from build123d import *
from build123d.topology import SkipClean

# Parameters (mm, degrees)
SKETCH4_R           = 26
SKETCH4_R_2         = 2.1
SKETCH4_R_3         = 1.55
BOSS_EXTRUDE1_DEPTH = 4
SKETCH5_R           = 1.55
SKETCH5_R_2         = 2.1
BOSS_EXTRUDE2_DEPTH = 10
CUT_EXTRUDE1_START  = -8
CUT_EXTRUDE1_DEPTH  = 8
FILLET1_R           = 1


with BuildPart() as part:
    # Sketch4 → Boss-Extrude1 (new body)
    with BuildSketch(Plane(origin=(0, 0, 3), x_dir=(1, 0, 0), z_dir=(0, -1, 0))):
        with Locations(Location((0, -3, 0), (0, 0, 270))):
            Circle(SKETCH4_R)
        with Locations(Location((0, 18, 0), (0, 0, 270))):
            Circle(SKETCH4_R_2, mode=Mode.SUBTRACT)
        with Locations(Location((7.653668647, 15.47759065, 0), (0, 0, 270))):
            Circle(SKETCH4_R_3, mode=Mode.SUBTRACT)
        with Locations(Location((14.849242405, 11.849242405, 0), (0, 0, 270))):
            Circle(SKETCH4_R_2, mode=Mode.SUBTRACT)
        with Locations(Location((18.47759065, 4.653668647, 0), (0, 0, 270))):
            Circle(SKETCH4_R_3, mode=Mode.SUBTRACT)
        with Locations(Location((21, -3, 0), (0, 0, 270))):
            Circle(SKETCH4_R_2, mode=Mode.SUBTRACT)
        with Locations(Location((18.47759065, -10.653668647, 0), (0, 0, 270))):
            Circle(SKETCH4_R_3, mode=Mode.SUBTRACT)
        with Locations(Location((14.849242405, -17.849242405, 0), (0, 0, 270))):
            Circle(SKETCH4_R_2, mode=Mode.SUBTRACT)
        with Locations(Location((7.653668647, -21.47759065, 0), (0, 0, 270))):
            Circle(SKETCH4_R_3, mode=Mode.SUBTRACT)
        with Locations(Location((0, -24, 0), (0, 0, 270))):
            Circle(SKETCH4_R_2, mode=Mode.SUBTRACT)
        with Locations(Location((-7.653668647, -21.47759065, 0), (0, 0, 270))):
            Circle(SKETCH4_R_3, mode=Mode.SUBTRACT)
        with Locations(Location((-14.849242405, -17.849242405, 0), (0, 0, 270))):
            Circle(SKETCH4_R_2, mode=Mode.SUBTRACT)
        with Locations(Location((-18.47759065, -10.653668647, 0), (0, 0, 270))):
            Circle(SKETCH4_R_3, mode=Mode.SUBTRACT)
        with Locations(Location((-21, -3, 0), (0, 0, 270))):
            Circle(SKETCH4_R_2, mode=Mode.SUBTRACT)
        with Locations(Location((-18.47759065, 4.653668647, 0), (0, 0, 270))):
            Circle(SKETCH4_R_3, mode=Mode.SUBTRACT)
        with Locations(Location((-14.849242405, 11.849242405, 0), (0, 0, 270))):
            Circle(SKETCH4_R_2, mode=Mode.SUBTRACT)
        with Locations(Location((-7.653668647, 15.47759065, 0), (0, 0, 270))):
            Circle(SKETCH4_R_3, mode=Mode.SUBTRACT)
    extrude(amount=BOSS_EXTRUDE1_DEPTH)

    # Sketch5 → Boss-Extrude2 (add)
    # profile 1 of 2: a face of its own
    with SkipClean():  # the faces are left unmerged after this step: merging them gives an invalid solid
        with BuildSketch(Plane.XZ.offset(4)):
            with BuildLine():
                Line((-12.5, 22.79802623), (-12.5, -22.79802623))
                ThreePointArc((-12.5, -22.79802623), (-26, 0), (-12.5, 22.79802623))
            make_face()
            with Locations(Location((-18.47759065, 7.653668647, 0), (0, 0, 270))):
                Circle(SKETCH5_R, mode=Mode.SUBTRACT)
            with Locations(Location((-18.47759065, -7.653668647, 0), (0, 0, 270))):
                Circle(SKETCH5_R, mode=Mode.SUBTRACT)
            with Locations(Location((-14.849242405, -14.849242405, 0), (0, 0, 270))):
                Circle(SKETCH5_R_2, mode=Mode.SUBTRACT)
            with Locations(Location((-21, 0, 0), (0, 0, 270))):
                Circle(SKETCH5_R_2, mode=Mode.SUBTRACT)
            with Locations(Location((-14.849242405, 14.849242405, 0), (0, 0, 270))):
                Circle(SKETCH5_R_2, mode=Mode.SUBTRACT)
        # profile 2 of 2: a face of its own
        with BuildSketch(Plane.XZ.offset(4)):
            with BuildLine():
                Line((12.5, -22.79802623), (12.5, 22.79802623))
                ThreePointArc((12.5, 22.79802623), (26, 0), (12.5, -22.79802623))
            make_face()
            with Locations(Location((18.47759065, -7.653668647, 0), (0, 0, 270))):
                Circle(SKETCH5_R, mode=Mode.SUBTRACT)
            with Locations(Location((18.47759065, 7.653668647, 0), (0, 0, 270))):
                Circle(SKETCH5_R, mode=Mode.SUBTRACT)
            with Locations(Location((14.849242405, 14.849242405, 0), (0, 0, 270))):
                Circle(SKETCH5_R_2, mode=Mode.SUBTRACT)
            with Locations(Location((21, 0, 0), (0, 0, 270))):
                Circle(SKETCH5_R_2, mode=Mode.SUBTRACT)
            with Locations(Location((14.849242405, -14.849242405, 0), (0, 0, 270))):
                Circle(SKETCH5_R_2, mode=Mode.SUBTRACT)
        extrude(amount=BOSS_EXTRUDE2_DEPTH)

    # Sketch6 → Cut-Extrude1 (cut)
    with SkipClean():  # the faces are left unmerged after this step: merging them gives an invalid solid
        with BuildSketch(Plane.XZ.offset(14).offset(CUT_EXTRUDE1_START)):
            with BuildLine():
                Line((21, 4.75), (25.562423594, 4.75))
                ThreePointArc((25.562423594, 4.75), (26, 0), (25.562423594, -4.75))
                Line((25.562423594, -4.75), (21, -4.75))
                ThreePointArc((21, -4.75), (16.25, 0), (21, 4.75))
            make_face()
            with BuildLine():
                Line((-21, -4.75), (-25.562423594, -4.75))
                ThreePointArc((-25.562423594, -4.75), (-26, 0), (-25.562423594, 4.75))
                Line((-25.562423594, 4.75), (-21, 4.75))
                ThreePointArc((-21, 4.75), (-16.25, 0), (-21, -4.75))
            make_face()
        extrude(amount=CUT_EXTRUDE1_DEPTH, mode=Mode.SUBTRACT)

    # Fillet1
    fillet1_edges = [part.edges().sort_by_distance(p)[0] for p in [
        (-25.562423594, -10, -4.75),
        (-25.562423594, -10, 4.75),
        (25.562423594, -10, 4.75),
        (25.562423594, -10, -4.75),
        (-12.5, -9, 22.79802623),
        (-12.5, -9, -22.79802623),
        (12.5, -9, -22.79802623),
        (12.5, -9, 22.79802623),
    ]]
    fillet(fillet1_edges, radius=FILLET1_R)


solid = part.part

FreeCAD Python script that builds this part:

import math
import FreeCAD as App
import Part
import Sketcher
from FreeCAD import Vector


def edges_at(feature, points):
    """Names of the edges that pass closest to the given points."""
    edges = feature.Shape.Edges
    near = lambda p: min(range(len(edges)), key=lambda i: edges[i].distToShape(Part.Vertex(*p))[0])
    return sorted({f"Edge{near(p) + 1}" for p in points})

doc = App.newDocument("Part")
body = doc.addObject("PartDesign::Body", "Body")

# Sketch on XZ plane
sketch1 = doc.addObject("Sketcher::SketchObject", "Sketch")
body.addObject(sketch1)
sketch1.AttachmentSupport = (doc.XZ_Plane, [""])
sketch1.MapMode = "FlatFace"
sketch1.addGeometry([
    Part.Circle(Vector(0, 0, 0), Vector(0, 0, 1), 26),  # 0
    Part.Circle(Vector(-14.8, 14.8, 0), Vector(0, 0, 1), 2.1),  # 1
    Part.Circle(Vector(-18.5, 7.7, 0), Vector(0, 0, 1), 1.6),  # 2
    Part.Circle(Vector(-7.7, 18.5, 0), Vector(0, 0, 1), 1.6),  # 3
    Part.Circle(Vector(0, 21, 0), Vector(0, 0, 1), 2.1),  # 4
    Part.Circle(Vector(-21, 0, 0), Vector(0, 0, 1), 2.1),  # 5
    Part.Circle(Vector(-18.5, -7.7, 0), Vector(0, 0, 1), 1.6),  # 6
    Part.Circle(Vector(-14.8, -14.8, 0), Vector(0, 0, 1), 2.1),  # 7
    Part.Circle(Vector(-7.7, -18.5, 0), Vector(0, 0, 1), 1.6),  # 8
    Part.Circle(Vector(7.7, 18.5, 0), Vector(0, 0, 1), 1.6),  # 9
    Part.Circle(Vector(14.8, 14.8, 0), Vector(0, 0, 1), 2.1),  # 10
    Part.Circle(Vector(18.5, 7.7, 0), Vector(0, 0, 1), 1.6),  # 11
    Part.Circle(Vector(21, 0, 0), Vector(0, 0, 1), 2.1),  # 12
    Part.Circle(Vector(0, -21, 0), Vector(0, 0, 1), 2.1),  # 13
    Part.Circle(Vector(7.7, -18.5, 0), Vector(0, 0, 1), 1.6),  # 14
    Part.Circle(Vector(18.5, -7.7, 0), Vector(0, 0, 1), 1.6),  # 15
    Part.Circle(Vector(14.8, -14.8, 0), Vector(0, 0, 1), 2.1),  # 16
], False)
sketch1.addConstraint([
    Sketcher.Constraint("Coincident", 0, 3, -1, 1),
    Sketcher.Constraint("Equal", 2, 3),
    Sketcher.Constraint("Equal", 1, 4),
    Sketcher.Constraint("Equal", 4, 5),
    Sketcher.Constraint("Equal", 3, 6),
    Sketcher.Constraint("Equal", 5, 7),
    Sketcher.Constraint("Equal", 6, 8),
    Sketcher.Constraint("Equal", 8, 9),
    Sketcher.Constraint("Equal", 7, 10),
    Sketcher.Constraint("Equal", 9, 11),
    Sketcher.Constraint("Equal", 10, 12),
    Sketcher.Constraint("Equal", 12, 13),
    Sketcher.Constraint("Equal", 11, 14),
    Sketcher.Constraint("Equal", 14, 15),
    Sketcher.Constraint("Equal", 13, 16),
    Sketcher.Constraint("Symmetric", 8, 3, 9, 3, -1, 1),
    Sketcher.Constraint("Symmetric", 7, 3, 10, 3, -1, 1),
    Sketcher.Constraint("Symmetric", 6, 3, 11, 3, -1, 1),
    Sketcher.Constraint("Symmetric", 5, 3, 12, 3, -1, 1),
    Sketcher.Constraint("Symmetric", 4, 3, 13, 3, -1, 1),
    Sketcher.Constraint("Symmetric", 3, 3, 14, 3, -1, 1),
    Sketcher.Constraint("Symmetric", 2, 3, 15, 3, -1, 1),
    Sketcher.Constraint("Symmetric", 1, 3, 16, 3, -1, 1),
    Sketcher.Constraint("Symmetric", 3, 3, 9, 3, -2),
    Sketcher.Constraint("Symmetric", 1, 3, 10, 3, -2),
    Sketcher.Constraint("Symmetric", 2, 3, 11, 3, -2),
    Sketcher.Constraint("PointOnObject", 4, 3, -2),
    Sketcher.Constraint("PointOnObject", 5, 3, -1),
    Sketcher.Constraint("Diameter", 0, 52.0),
    Sketcher.Constraint("Diameter", 1, 4.2),
    Sketcher.Constraint("Diameter", 2, 3.1),
    Sketcher.Constraint("DistanceY", -1, 1, 4, 3, 21.0),
    Sketcher.Constraint("DistanceX", 5, 3, -1, 1, 21.0),
    Sketcher.Constraint("DistanceX", 2, 3, -1, 1, 18.477591),
    Sketcher.Constraint("DistanceY", -1, 1, 2, 3, 7.653669),
    Sketcher.Constraint("DistanceX", 3, 3, -1, 1, 7.653669),
    Sketcher.Constraint("DistanceY", -1, 1, 3, 3, 18.477591),
    Sketcher.Constraint("DistanceX", 2, 3, 1, 3, 3.628348),
    Sketcher.Constraint("DistanceY", 1, 3, 3, 3, 3.628348),
])
pad1 = doc.addObject("PartDesign::Pad", "Pad")
body.addObject(pad1)
pad1.Profile = sketch1
pad1.Length = 4

# Sketch on XZ plane
sketch2 = doc.addObject("Sketcher::SketchObject", "Sketch001")
body.addObject(sketch2)
sketch2.AttachmentSupport = (doc.XZ_Plane, [""])
sketch2.MapMode = "FlatFace"
sketch2.AttachmentOffset = App.Placement(Vector(0, 0, 4), App.Rotation())
sketch2.addGeometry([
    Part.LineSegment(Vector(-12.5, -22.8, 0), Vector(-12.5, 22.8, 0)),  # 0
    Part.ArcOfCircle(Part.Circle(Vector(0, 0, 0), Vector(0, 0, 1), 26), math.radians(119), math.radians(241)),  # 1
    Part.Circle(Vector(-14.8, -14.8, 0), Vector(0, 0, 1), 2.1),  # 2
    Part.Circle(Vector(-18.5, -7.7, 0), Vector(0, 0, 1), 1.6),  # 3
    Part.Circle(Vector(-14.8, 14.8, 0), Vector(0, 0, 1), 2.1),  # 4
    Part.Circle(Vector(-18.5, 7.7, 0), Vector(0, 0, 1), 1.6),  # 5
    Part.Circle(Vector(-21, 0, 0), Vector(0, 0, 1), 2.1),  # 6
    Part.LineSegment(Vector(12.5, 22.8, 0), Vector(12.5, -22.8, 0)),  # 7
    Part.ArcOfCircle(Part.Circle(Vector(0, 0, 0), Vector(0, 0, 1), 26), math.radians(-61), math.radians(61)),  # 8
    Part.Circle(Vector(18.5, -7.7, 0), Vector(0, 0, 1), 1.6),  # 9
    Part.Circle(Vector(14.8, -14.8, 0), Vector(0, 0, 1), 2.1),  # 10
    Part.Circle(Vector(21, 0, 0), Vector(0, 0, 1), 2.1),  # 11
    Part.Circle(Vector(18.5, 7.7, 0), Vector(0, 0, 1), 1.6),  # 12
    Part.Circle(Vector(14.8, 14.8, 0), Vector(0, 0, 1), 2.1),  # 13
], False)
sketch2.addConstraint([
    Sketcher.Constraint("Coincident", 0, 1, 1, 2),
    Sketcher.Constraint("Coincident", 1, 1, 0, 2),
    Sketcher.Constraint("Coincident", 7, 1, 8, 2),
    Sketcher.Constraint("Coincident", 8, 1, 7, 2),
    Sketcher.Constraint("Vertical", 0),
    Sketcher.Constraint("Vertical", 7),
    Sketcher.Constraint("Coincident", 1, 3, -1, 1),
    Sketcher.Constraint("Coincident", 8, 3, -1, 1),
    Sketcher.Constraint("Equal", 2, 4),
    Sketcher.Constraint("Equal", 3, 5),
    Sketcher.Constraint("Equal", 4, 6),
    Sketcher.Constraint("Equal", 1, 8),
    Sketcher.Constraint("Equal", 5, 9),
    Sketcher.Constraint("Equal", 6, 10),
    Sketcher.Constraint("Equal", 10, 11),
    Sketcher.Constraint("Equal", 9, 12),
    Sketcher.Constraint("Equal", 11, 13),
    Sketcher.Constraint("Symmetric", 5, 3, 9, 3, -1, 1),
    Sketcher.Constraint("Symmetric", 4, 3, 10, 3, -1, 1),
    Sketcher.Constraint("Symmetric", 6, 3, 11, 3, -1, 1),
    Sketcher.Constraint("Symmetric", 3, 3, 12, 3, -1, 1),
    Sketcher.Constraint("Symmetric", 2, 3, 13, 3, -1, 1),
    Sketcher.Constraint("Symmetric", 3, 3, 9, 3, -2),
    Sketcher.Constraint("Symmetric", 2, 3, 10, 3, -2),
    Sketcher.Constraint("PointOnObject", 6, 3, -1),
    Sketcher.Constraint("Horizontal", 1, 1, 7, 1),
    Sketcher.Constraint("Radius", 1, 26.0),
    Sketcher.Constraint("Diameter", 2, 4.2),
    Sketcher.Constraint("Diameter", 3, 3.1),
    Sketcher.Constraint("DistanceX", 6, 3, -1, 1, 21.0),
    Sketcher.Constraint("DistanceX", 1, 1, 7, 1, 25.0),
    Sketcher.Constraint("DistanceX", 3, 3, -1, 1, 18.477591),
    Sketcher.Constraint("DistanceY", 3, 3, -1, 1, 7.653669),
    Sketcher.Constraint("DistanceX", 3, 3, 2, 3, 3.628348),
    Sketcher.Constraint("DistanceY", 3, 3, 4, 3, 22.502911),
])
pad2 = doc.addObject("PartDesign::Pad", "Pad001")
body.addObject(pad2)
pad2.Profile = sketch2
pad2.Length = 10

# Sketch on XZ plane
sketch3 = doc.addObject("Sketcher::SketchObject", "Sketch002")
body.addObject(sketch3)
sketch3.AttachmentSupport = (doc.XZ_Plane, [""])
sketch3.MapMode = "FlatFace"
sketch3.AttachmentOffset = App.Placement(Vector(0, 0, 6), App.Rotation())
sketch3.addGeometry([
    Part.LineSegment(Vector(25.6, 4.8, 0), Vector(21, 4.8, 0)),  # 0
    Part.ArcOfCircle(Part.Circle(Vector(21, 0, 0), Vector(0, 0, 1), 4.8), math.radians(90), math.radians(270)),  # 1
    Part.LineSegment(Vector(21, -4.8, 0), Vector(25.6, -4.8, 0)),  # 2
    Part.ArcOfCircle(Part.Circle(Vector(0, 0, 0), Vector(0, 0, 1), 26), math.radians(-11), math.radians(11)),  # 3
    Part.LineSegment(Vector(-25.6, -4.8, 0), Vector(-21, -4.8, 0)),  # 4
    Part.ArcOfCircle(Part.Circle(Vector(-21, 0, 0), Vector(0, 0, 1), 4.8), math.radians(-90), math.radians(90)),  # 5
    Part.LineSegment(Vector(-21, 4.8, 0), Vector(-25.6, 4.8, 0)),  # 6
    Part.ArcOfCircle(Part.Circle(Vector(0, 0, 0), Vector(0, 0, 1), 26), math.radians(169), math.radians(191)),  # 7
], False)
sketch3.addConstraint([
    Sketcher.Constraint("Tangent", 0, 2, 1, 1),
    Sketcher.Constraint("Tangent", 1, 2, 2, 1),
    Sketcher.Constraint("Coincident", 2, 2, 3, 1),
    Sketcher.Constraint("Coincident", 3, 2, 0, 1),
    Sketcher.Constraint("Tangent", 4, 2, 5, 1),
    Sketcher.Constraint("Tangent", 5, 2, 6, 1),
    Sketcher.Constraint("Coincident", 6, 2, 7, 1),
    Sketcher.Constraint("Coincident", 7, 2, 4, 1),
    Sketcher.Constraint("Horizontal", 0),
    Sketcher.Constraint("Horizontal", 2),
    Sketcher.Constraint("Horizontal", 4),
    Sketcher.Constraint("Horizontal", 6),
    Sketcher.Constraint("Coincident", 3, 3, -1, 1),
    Sketcher.Constraint("Coincident", 7, 3, -1, 1),
    Sketcher.Constraint("Equal", 1, 5),
    Sketcher.Constraint("Equal", 3, 7),
    Sketcher.Constraint("Symmetric", 1, 3, 5, 3, -1, 1),
    Sketcher.Constraint("PointOnObject", 1, 3, -1),
    Sketcher.Constraint("Radius", 3, 26.0),
    Sketcher.Constraint("Radius", 1, 4.75),
    Sketcher.Constraint("DistanceX", -1, 1, 1, 3, 21.0),
])
pocket1 = doc.addObject("PartDesign::Pocket", "Pocket")
body.addObject(pocket1)
pocket1.Profile = sketch3
pocket1.Length = 8
pocket1.Reversed = True
doc.recompute()

fillet = doc.addObject("PartDesign::Fillet", "Fillet")
body.addObject(fillet)
fillet.Base = (pocket1, edges_at(pocket1, [
    (-25.562, -10, -4.75),
    (-25.562, -10, 4.75),
    (25.562, -10, 4.75),
    (25.562, -10, -4.75),
    (-12.5, -9, 22.798),
    (-12.5, -9, -22.798),
    (12.5, -9, -22.798),
    (12.5, -9, 22.798),
]))
fillet.Radius = 1

doc.recompute()
